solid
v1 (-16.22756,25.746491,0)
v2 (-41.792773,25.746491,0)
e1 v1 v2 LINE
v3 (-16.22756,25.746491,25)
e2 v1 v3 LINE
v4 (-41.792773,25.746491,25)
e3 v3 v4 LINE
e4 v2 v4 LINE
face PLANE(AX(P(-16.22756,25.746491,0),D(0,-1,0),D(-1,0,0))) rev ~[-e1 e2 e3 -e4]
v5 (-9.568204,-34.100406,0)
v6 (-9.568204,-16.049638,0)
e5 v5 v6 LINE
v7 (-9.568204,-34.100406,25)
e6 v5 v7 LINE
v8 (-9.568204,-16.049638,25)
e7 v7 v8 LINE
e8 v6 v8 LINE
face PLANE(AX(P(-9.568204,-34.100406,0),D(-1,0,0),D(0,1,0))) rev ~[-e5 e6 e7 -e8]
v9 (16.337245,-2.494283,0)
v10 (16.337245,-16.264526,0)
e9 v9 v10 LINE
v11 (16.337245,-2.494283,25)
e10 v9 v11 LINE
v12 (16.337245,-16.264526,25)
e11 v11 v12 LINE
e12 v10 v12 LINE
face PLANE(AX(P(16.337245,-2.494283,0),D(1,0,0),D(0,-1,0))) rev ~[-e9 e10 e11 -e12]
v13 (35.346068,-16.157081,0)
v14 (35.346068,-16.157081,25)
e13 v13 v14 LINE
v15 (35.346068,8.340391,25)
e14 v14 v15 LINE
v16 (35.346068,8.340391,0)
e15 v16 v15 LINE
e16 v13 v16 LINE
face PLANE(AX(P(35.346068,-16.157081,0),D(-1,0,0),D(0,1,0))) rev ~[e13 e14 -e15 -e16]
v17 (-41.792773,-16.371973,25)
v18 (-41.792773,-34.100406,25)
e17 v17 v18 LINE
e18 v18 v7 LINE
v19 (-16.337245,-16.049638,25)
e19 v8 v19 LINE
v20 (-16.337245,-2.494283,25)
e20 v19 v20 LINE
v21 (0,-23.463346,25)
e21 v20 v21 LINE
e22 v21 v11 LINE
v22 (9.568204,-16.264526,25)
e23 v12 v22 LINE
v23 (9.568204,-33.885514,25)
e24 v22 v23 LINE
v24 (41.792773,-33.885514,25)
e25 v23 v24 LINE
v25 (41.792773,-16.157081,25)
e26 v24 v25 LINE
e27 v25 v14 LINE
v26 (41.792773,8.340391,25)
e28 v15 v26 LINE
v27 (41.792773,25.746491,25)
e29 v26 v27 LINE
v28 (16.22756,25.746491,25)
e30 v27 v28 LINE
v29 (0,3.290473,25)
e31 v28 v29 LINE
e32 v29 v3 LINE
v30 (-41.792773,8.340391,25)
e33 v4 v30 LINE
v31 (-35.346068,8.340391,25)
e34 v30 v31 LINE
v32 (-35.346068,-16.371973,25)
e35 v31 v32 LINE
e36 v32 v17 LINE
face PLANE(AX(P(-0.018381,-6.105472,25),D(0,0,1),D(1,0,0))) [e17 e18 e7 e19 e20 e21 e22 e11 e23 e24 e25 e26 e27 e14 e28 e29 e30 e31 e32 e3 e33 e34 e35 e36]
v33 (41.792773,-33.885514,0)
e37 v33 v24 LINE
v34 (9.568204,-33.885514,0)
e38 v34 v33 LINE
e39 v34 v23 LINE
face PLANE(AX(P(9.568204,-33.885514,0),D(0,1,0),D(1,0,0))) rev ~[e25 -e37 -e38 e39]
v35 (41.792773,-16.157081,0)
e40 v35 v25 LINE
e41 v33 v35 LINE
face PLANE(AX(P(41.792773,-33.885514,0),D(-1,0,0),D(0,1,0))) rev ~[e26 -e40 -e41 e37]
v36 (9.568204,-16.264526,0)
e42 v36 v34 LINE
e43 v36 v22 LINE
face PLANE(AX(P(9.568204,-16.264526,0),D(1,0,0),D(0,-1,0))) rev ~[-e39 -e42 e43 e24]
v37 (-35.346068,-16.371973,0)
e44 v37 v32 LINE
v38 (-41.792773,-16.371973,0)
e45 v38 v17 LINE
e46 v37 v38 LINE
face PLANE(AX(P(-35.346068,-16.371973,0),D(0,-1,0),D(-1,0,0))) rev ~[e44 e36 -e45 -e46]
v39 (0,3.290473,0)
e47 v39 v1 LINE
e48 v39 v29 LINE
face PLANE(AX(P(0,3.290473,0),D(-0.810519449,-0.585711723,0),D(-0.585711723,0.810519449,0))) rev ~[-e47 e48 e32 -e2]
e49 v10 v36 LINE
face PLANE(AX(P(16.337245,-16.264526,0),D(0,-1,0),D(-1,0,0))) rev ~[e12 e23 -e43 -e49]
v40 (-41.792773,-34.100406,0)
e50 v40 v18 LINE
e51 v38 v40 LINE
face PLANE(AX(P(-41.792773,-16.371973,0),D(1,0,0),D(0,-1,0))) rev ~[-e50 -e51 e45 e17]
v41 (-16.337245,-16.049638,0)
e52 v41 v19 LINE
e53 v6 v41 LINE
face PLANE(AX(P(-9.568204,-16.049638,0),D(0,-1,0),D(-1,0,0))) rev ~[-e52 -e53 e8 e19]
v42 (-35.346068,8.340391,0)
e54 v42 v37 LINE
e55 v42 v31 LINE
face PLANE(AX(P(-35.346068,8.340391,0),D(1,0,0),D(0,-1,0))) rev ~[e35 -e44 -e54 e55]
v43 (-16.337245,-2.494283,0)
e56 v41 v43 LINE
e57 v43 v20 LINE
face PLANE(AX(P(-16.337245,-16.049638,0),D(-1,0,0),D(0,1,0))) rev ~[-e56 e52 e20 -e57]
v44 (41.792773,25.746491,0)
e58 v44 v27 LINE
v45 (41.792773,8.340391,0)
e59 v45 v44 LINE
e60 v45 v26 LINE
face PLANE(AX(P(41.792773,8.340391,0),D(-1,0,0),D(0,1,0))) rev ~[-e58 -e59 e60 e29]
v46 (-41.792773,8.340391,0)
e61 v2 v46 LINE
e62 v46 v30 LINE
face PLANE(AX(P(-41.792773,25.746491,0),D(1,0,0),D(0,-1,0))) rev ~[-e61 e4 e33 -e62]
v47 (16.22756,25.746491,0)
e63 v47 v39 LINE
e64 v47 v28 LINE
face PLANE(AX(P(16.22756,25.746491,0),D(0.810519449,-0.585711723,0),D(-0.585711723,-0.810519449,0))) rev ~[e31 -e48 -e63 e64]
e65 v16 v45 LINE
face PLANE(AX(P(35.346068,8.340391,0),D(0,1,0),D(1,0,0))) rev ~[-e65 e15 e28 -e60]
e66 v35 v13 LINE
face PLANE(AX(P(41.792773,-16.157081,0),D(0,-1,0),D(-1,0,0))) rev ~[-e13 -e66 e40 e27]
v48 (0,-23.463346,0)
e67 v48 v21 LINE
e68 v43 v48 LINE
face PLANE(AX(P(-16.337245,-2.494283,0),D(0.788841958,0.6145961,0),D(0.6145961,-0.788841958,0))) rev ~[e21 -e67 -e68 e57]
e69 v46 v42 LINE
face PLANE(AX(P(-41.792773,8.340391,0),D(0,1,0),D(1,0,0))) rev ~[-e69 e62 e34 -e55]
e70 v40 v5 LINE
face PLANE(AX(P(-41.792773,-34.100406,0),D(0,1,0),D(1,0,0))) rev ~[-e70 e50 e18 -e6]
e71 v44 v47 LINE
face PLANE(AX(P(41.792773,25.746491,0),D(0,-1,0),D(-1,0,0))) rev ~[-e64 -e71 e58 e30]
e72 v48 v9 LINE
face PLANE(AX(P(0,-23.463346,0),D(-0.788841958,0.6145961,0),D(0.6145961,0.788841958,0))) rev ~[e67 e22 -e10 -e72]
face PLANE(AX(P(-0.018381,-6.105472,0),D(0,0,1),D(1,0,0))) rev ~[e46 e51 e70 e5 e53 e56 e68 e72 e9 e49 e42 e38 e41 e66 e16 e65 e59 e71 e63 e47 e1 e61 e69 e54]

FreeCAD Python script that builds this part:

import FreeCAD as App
import Part
import Sketcher

V = App.Vector

doc = App.newDocument("Part")
params = doc.addObject("Spreadsheet::Sheet", "Params")
for row, (alias, value) in enumerate([
    ("pad1_length", "25 mm"),
], start=1):
    params.set(f"A{row}", alias)
    params.set(f"B{row}", "=" + value)
    params.setAlias(f"B{row}", alias)

body = doc.addObject("PartDesign::Body", "Body")

# Sketch on XY plane
sketch1 = doc.addObject("Sketcher::SketchObject", "Sketch")
body.addObject(sketch1)
sketch1.AttachmentSupport = (doc.XY_Plane, [""])
sketch1.MapMode = "FlatFace"
sketch1.addGeometry([
    Part.LineSegment(V(-16, 26, 0), V(-42, 26, 0)),  # 0
    Part.LineSegment(V(-42, 26, 0), V(-42, 8, 0)),  # 1
    Part.LineSegment(V(-42, 8, 0), V(-35, 8, 0)),  # 2
    Part.LineSegment(V(-35, 8, 0), V(-35, -16, 0)),  # 3
    Part.LineSegment(V(-35, -16, 0), V(-42, -16, 0)),  # 4
    Part.LineSegment(V(-42, -16, 0), V(-42, -34, 0)),  # 5
    Part.LineSegment(V(-42, -34, 0), V(-10, -34, 0)),  # 6
    Part.LineSegment(V(-10, -34, 0), V(-10, -16, 0)),  # 7
    Part.LineSegment(V(-10, -16, 0), V(-16, -16, 0)),  # 8
    Part.LineSegment(V(-16, -16, 0), V(-16, -2, 0)),  # 9
    Part.LineSegment(V(-16, -2, 0), V(0, -23, 0)),  # 10
    Part.LineSegment(V(0, -23, 0), V(16, -2, 0)),  # 11
    Part.LineSegment(V(16, -2, 0), V(16, -16, 0)),  # 12
    Part.LineSegment(V(16, -16, 0), V(10, -16, 0)),  # 13
    Part.LineSegment(V(10, -16, 0), V(10, -34, 0)),  # 14
    Part.LineSegment(V(10, -34, 0), V(42, -34, 0)),  # 15
    Part.LineSegment(V(42, -34, 0), V(42, -16, 0)),  # 16
    Part.LineSegment(V(42, -16, 0), V(35, -16, 0)),  # 17
    Part.LineSegment(V(35, -16, 0), V(35, 8, 0)),  # 18
    Part.LineSegment(V(35, 8, 0), V(42, 8, 0)),  # 19
    Part.LineSegment(V(42, 8, 0), V(42, 26, 0)),  # 20
    Part.LineSegment(V(42, 26, 0), V(16, 26, 0)),  # 21
    Part.LineSegment(V(16, 26, 0), V(0, 3, 0)),  # 22
    Part.LineSegment(V(0, 3, 0), V(-16, 26, 0)),  # 23
], False)
sketch1.addConstraint([
    Sketcher.Constraint("Coincident", 0, 2, 1, 1),
    Sketcher.Constraint("Coincident", 1, 2, 2, 1),
    Sketcher.Constraint("Coincident", 2, 2, 3, 1),
    Sketcher.Constraint("Coincident", 3, 2, 4, 1),
    Sketcher.Constraint("Coincident", 4, 2, 5, 1),
    Sketcher.Constraint("Coincident", 5, 2, 6, 1),
    Sketcher.Constraint("Coincident", 6, 2, 7, 1),
    Sketcher.Constraint("Coincident", 7, 2, 8, 1),
    Sketcher.Constraint("Coincident", 8, 2, 9, 1),
    Sketcher.Constraint("Coincident", 9, 2, 10, 1),
    Sketcher.Constraint("Coincident", 10, 2, 11, 1),
    Sketcher.Constraint("Coincident", 11, 2, 12, 1),
    Sketcher.Constraint("Coincident", 12, 2, 13, 1),
    Sketcher.Constraint("Coincident", 13, 2, 14, 1),
    Sketcher.Constraint("Coincident", 14, 2, 15, 1),
    Sketcher.Constraint("Coincident", 15, 2, 16, 1),
    Sketcher.Constraint("Coincident", 16, 2, 17, 1),
    Sketcher.Constraint("Coincident", 17, 2, 18, 1),
    Sketcher.Constraint("Coincident", 18, 2, 19, 1),
    Sketcher.Constraint("Coincident", 19, 2, 20, 1),
    Sketcher.Constraint("Coincident", 20, 2, 21, 1),
    Sketcher.Constraint("Coincident", 21, 2, 22, 1),
    Sketcher.Constraint("Coincident", 22, 2, 23, 1),
    Sketcher.Constraint("Coincident", 23, 2, 0, 1),
    Sketcher.Constraint("Horizontal", 0),
    Sketcher.Constraint("Vertical", 1),
    Sketcher.Constraint("Horizontal", 2),
    Sketcher.Constraint("Vertical", 3),
    Sketcher.Constraint("Horizontal", 4),
    Sketcher.Constraint("Vertical", 5),
    Sketcher.Constraint("Horizontal", 6),
    Sketcher.Constraint("Vertical", 7),
    Sketcher.Constraint("Horizontal", 8),
    Sketcher.Constraint("Vertical", 9),
    Sketcher.Constraint("Vertical", 12),
    Sketcher.Constraint("Horizontal", 13),
    Sketcher.Constraint("Vertical", 14),
    Sketcher.Constraint("Horizontal", 15),
    Sketcher.Constraint("Vertical", 16),
    Sketcher.Constraint("Horizontal", 17),
    Sketcher.Constraint("Vertical", 18),
    Sketcher.Constraint("Horizontal", 19),
    Sketcher.Constraint("Vertical", 20),
    Sketcher.Constraint("Horizontal", 21),
    Sketcher.Constraint("Symmetric", 9, 2, 11, 2, -2),
    Sketcher.Constraint("Symmetric", 2, 2, 18, 2, -2),
    Sketcher.Constraint("Symmetric", 0, 2, 20, 2, -2),
    Sketcher.Constraint("PointOnObject", 10, 2, -2),
    Sketcher.Constraint("PointOnObject", 22, 2, -2),
    Sketcher.Constraint("Vertical", 1, 2, 4, 2),
    Sketcher.Constraint("Vertical", 16, 2, 19, 2),
    Sketcher.Constraint("Equal", 8, 13),
    Sketcher.Constraint("Equal", 0, 21),
    Sketcher.Constraint("Equal", 5, 16),
    Sketcher.Constraint("DistanceY", 1, 2, 1, 1, 17.4061),
    Sketcher.Constraint("DistanceY", 13, 2, 22, 2, 19.554999),
    Sketcher.Constraint("DistanceX", 6, 1, 6, 2, 32.224569),
    Sketcher.Constraint("DistanceX", 8, 2, 8, 1, 6.769041),
    Sketcher.Constraint("DistanceY", 14, 2, 14, 1, 17.620988),
    Sketcher.Constraint("DistanceY", 16, 2, 11, 2, 13.662798),
    Sketcher.Constraint("Distance", 22, 27.705711),
    Sketcher.Constraint("DistanceX", 0, 2, 0, 1, 25.565213),
    Sketcher.Constraint("DistanceX", 2, 1, 2, 2, 6.446705),
    Sketcher.Constraint("DistanceY", 3, 2, 3, 1, 24.712364),
    Sketcher.Constraint("DistanceY", 5, 2, 5, 1, 17.728433),
    Sketcher.Constraint("DistanceY", 7, 1, 7, 2, 18.050768),
    Sketcher.Constraint("DistanceY", 9, 1, 9, 2, 13.555355),
    Sketcher.Constraint("DistanceY", -1, 1, 0, 2, 25.746491),
    Sketcher.Constraint("DistanceY", 6, 2, 10, 2, 10.63706),
])
pad1 = doc.addObject("PartDesign::Pad", "Pad")
body.addObject(pad1)
pad1.Profile = sketch1
pad1.setExpression("Length", "Params.pad1_length")

doc.recompute()
